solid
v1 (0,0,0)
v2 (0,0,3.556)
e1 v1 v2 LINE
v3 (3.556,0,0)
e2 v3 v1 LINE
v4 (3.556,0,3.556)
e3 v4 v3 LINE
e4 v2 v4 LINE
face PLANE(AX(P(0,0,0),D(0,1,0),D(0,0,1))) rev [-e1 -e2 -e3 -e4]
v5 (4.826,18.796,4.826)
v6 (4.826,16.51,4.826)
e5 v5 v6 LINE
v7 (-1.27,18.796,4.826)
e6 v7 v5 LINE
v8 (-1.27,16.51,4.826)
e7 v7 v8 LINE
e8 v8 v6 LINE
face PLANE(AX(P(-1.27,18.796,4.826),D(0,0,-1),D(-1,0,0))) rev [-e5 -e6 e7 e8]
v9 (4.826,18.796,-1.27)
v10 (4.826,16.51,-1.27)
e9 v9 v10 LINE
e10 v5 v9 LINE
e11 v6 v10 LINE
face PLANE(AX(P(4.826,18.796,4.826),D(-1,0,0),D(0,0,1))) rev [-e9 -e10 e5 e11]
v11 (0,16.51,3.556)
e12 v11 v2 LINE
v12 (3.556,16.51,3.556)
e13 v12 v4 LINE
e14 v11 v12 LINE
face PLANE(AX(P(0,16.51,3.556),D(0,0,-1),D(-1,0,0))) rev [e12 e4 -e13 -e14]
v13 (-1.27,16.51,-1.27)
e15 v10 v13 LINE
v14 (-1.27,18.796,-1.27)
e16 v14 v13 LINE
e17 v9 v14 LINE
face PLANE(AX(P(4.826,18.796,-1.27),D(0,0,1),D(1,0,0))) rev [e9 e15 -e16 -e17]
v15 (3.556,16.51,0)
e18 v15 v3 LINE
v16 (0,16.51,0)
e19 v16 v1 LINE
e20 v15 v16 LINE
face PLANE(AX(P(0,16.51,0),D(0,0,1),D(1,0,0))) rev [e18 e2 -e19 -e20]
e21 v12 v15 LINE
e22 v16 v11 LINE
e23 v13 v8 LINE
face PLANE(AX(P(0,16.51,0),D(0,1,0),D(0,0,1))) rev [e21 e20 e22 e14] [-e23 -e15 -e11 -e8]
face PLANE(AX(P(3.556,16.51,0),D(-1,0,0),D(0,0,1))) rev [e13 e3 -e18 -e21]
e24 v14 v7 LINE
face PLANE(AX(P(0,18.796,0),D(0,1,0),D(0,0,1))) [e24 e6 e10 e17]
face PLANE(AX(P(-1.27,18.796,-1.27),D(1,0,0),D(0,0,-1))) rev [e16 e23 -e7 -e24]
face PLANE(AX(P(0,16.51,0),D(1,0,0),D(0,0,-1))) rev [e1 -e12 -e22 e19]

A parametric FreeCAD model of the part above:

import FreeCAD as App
import Part
import Sketcher
from FreeCAD import Vector
Q = App.Units.Quantity

doc = App.newDocument("Part")
body = doc.addObject("PartDesign::Body", "Body")

# Sketch on XZ plane
sketch1 = doc.addObject("Sketcher::SketchObject", "Sketch")
body.addObject(sketch1)
sketch1.AttachmentSupport = (doc.XZ_Plane, [""])
sketch1.MapMode = "FlatFace"
sketch1.addGeometry([
    Part.LineSegment(Vector(0, 0, 0), Vector(0, 3.6, 0)),
    Part.LineSegment(Vector(0, 3.6, 0), Vector(3.6, 3.6, 0)),
    Part.LineSegment(Vector(3.6, 3.6, 0), Vector(3.6, 0, 0)),
    Part.LineSegment(Vector(3.6, 0, 0), Vector(0, 0, 0)),
], False)
sketch1.addConstraint([
    Sketcher.Constraint("Coincident", 0, 2, 1, 1),
    Sketcher.Constraint("Coincident", 1, 2, 2, 1),
    Sketcher.Constraint("Coincident", 2, 2, 3, 1),
    Sketcher.Constraint("Coincident", 3, 2, 0, 1),
    Sketcher.Constraint("Vertical", 0),
    Sketcher.Constraint("Horizontal", 1),
    Sketcher.Constraint("Vertical", 2),
    Sketcher.Constraint("Horizontal", 3),
    Sketcher.Constraint("Coincident", 3, 2, -1, 1),
    Sketcher.Constraint("Equal", 3, 0),
    Sketcher.Constraint("DistanceX", 1, 1, 1, 2, Q("0.14 in")),
])
pad1 = doc.addObject("PartDesign::Pad", "Pad")
body.addObject(pad1)
pad1.Profile = sketch1
pad1.Length = Q("0.65 in")
pad1.Reversed = True

# Sketch on XZ plane
sketch2 = doc.addObject("Sketcher::SketchObject", "Sketch001")
body.addObject(sketch2)
sketch2.AttachmentSupport = (doc.XZ_Plane, [""])
sketch2.MapMode = "FlatFace"
sketch2.AttachmentOffset = App.Placement(Vector(0, 0, -0.65 * 25.4), App.Rotation())
sketch2.addGeometry([
    Part.LineSegment(Vector(-1, -1, 0), Vector(-1, 5, 0)),
    Part.LineSegment(Vector(-1, 5, 0), Vector(5, 5, 0)),
    Part.LineSegment(Vector(5, 5, 0), Vector(5, -1, 0)),
    Part.LineSegment(Vector(5, -1, 0), Vector(-1, -1, 0)),
], False)
sketch2.addConstraint([
    Sketcher.Constraint("Coincident", 0, 2, 1, 1),
    Sketcher.Constraint("Coincident", 1, 2, 2, 1),
    Sketcher.Constraint("Coincident", 2, 2, 3, 1),
    Sketcher.Constraint("Coincident", 3, 2, 0, 1),
    Sketcher.Constraint("Vertical", 0),
    Sketcher.Constraint("Horizontal", 1),
    Sketcher.Constraint("Vertical", 2),
    Sketcher.Constraint("Horizontal", 3),
    Sketcher.Constraint("Equal", 3, 0),
    Sketcher.Constraint("DistanceX", 1, 1, 1, 2, Q("0.24 in")),
    Sketcher.Constraint("DistanceX", 0, 2, -1, 1, Q("0.05 in")),
    Sketcher.Constraint("DistanceY", -1, 1, 0, 2, Q("0.19 in")),
])
pad2 = doc.addObject("PartDesign::Pad", "Pad001")
body.addObject(pad2)
pad2.Profile = sketch2
pad2.Length = Q("0.09 in")
pad2.Reversed = True

doc.recompute()
